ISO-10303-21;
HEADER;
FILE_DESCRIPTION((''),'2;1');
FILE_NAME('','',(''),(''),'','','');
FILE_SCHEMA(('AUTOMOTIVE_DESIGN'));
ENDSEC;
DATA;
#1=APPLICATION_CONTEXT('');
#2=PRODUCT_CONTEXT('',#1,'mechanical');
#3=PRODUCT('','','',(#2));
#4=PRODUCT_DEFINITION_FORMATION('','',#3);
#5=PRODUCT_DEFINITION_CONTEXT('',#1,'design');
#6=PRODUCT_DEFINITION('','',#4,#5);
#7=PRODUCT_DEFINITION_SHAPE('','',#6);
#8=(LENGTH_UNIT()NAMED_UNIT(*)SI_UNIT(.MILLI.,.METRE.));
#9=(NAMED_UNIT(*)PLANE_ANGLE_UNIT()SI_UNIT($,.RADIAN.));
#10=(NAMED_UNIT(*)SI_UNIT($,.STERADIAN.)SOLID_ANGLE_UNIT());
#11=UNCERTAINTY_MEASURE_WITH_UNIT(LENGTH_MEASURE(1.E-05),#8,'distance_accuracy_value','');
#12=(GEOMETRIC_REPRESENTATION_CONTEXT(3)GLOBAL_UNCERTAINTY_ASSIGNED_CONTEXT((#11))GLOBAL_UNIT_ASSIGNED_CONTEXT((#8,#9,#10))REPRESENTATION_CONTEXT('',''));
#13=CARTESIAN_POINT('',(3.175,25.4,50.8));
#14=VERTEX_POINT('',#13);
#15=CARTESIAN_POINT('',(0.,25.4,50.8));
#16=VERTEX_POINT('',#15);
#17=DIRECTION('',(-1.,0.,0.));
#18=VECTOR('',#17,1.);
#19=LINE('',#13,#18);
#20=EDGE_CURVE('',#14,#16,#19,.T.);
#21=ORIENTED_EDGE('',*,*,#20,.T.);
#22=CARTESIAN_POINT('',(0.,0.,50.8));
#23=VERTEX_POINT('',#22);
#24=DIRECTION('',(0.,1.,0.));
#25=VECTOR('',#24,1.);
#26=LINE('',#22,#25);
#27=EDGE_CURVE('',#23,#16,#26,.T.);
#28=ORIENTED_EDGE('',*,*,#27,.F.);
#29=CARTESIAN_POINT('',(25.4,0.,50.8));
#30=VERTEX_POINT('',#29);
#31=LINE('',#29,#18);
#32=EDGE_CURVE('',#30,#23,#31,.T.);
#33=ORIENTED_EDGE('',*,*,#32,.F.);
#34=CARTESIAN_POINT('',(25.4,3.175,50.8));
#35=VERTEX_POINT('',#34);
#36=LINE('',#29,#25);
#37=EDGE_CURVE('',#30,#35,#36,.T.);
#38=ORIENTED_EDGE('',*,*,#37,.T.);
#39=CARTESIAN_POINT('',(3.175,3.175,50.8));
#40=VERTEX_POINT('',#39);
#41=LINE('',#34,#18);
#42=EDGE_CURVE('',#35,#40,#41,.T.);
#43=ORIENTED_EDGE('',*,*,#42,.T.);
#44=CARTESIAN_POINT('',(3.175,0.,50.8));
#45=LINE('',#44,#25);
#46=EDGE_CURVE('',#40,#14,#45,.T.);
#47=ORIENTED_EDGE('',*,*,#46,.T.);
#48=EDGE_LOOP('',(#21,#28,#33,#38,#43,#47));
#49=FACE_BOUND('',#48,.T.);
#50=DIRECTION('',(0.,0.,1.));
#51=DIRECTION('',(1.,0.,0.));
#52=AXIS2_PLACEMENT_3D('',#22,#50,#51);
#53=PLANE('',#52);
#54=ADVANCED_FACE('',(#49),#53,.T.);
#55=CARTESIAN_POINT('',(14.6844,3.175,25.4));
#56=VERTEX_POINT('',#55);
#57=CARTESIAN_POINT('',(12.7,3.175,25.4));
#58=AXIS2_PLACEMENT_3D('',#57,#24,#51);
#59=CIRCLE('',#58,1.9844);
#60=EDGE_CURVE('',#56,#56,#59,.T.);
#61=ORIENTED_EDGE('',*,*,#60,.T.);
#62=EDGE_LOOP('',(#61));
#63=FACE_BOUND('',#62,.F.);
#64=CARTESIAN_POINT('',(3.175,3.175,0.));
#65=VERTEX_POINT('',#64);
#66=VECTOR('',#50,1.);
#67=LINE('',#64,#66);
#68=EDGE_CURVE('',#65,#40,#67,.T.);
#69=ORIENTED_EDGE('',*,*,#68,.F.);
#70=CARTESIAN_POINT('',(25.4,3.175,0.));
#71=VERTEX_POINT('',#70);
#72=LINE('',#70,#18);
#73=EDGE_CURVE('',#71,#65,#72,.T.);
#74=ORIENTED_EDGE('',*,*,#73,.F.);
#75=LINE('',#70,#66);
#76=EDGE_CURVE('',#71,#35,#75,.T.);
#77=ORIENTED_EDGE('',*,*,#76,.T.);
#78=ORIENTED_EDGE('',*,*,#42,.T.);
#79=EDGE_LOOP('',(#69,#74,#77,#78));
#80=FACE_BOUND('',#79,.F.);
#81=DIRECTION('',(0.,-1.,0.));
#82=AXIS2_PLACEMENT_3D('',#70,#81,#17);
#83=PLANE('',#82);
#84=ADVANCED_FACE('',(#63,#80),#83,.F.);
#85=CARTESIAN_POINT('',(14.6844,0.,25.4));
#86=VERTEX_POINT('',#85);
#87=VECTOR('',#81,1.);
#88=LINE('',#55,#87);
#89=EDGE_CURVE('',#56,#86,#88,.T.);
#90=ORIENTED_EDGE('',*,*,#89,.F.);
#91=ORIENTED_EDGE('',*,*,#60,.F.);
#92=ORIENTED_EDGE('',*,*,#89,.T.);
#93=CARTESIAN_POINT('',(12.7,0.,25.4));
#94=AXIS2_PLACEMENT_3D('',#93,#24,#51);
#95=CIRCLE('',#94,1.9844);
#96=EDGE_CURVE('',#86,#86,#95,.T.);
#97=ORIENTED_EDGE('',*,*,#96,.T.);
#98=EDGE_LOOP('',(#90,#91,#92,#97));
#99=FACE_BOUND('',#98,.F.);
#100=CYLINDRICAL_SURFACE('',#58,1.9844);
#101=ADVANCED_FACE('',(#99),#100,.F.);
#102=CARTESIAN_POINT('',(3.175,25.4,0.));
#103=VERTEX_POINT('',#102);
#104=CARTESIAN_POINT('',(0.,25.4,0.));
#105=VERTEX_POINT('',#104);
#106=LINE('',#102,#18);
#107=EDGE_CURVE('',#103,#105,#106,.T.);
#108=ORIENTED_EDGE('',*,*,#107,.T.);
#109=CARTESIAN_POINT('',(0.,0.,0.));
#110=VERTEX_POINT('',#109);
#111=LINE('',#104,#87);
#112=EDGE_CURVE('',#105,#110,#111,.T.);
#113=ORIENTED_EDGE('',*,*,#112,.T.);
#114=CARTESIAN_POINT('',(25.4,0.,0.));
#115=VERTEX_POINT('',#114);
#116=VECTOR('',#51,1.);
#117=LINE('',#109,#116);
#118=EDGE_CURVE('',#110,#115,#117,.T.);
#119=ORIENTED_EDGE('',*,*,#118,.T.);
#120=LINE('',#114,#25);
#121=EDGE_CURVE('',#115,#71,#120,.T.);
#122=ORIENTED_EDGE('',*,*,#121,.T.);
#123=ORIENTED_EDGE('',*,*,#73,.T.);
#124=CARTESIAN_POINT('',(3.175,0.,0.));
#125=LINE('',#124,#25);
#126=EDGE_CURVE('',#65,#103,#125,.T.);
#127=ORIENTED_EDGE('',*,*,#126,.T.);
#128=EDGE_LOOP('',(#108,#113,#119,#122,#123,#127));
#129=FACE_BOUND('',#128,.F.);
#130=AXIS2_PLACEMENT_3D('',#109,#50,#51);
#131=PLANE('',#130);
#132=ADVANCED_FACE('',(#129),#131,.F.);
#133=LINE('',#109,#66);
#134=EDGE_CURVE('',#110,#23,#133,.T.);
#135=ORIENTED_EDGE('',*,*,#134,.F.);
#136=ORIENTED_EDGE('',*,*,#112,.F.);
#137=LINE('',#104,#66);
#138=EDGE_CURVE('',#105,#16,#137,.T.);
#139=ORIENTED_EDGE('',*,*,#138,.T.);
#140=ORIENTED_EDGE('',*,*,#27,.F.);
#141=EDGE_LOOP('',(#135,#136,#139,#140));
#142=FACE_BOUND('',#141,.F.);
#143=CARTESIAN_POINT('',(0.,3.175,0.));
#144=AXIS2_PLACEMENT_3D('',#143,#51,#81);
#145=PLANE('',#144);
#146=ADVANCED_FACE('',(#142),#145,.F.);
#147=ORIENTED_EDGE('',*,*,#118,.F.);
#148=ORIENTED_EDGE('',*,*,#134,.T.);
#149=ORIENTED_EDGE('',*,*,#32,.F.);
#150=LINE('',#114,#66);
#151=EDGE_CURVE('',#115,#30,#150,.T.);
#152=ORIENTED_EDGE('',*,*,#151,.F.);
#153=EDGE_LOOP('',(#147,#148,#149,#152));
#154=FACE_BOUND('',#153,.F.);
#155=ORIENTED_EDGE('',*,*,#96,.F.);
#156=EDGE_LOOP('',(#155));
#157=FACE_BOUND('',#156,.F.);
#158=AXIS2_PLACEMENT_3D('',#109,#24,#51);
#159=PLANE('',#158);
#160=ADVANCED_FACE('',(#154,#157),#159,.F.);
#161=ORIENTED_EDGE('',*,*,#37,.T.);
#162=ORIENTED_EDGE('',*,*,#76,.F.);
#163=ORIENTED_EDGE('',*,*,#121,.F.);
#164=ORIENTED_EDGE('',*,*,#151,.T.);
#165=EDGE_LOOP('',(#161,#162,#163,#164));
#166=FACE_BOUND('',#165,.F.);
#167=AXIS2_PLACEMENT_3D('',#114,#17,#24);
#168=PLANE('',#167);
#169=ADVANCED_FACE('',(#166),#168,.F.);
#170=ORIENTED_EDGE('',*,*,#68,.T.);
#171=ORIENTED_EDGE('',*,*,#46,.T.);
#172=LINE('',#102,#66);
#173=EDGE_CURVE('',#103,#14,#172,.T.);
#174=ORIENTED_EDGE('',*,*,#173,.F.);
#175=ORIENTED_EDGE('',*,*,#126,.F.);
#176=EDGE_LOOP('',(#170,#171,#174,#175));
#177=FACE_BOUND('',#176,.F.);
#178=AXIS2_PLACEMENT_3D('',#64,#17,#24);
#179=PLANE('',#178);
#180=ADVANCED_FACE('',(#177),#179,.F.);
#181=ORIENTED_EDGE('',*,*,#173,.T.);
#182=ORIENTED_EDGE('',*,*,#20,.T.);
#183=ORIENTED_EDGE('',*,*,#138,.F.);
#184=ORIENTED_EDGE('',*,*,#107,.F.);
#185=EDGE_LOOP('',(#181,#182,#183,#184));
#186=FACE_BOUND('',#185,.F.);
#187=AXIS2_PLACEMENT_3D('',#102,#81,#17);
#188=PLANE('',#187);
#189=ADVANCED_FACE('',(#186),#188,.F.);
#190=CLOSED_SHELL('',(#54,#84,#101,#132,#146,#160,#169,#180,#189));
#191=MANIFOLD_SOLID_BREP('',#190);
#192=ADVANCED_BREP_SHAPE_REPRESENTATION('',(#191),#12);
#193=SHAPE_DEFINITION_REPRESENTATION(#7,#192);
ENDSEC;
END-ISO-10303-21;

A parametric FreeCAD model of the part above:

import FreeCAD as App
import Part
import Sketcher
from FreeCAD import Vector
Q = App.Units.Quantity

doc = App.newDocument("Part")
body = doc.addObject("PartDesign::Body", "Body")

# Sketch on XY plane
sketch1 = body.newObject("Sketcher::SketchObject", "Sketch")
sketch1.AttachmentSupport = (doc.getObject("XY_Plane"), [""])
sketch1.MapMode = "FlatFace"
sketch1.addGeometry(Part.LineSegment(Vector(0, 0, 0), Vector(25.4, 0, 0)), False)
sketch1.addGeometry(Part.LineSegment(Vector(25.4, 0, 0), Vector(25.4, 3.2, 0)), False)
sketch1.addGeometry(Part.LineSegment(Vector(25.4, 3.2, 0), Vector(3.2, 3.2, 0)), False)
sketch1.addGeometry(Part.LineSegment(Vector(3.2, 3.2, 0), Vector(3.2, 25.4, 0)), False)
sketch1.addGeometry(Part.LineSegment(Vector(3.2, 25.4, 0), Vector(0, 25.4, 0)), False)
sketch1.addGeometry(Part.LineSegment(Vector(0, 25.4, 0), Vector(0, 0, 0)), False)
sketch1.addConstraint(Sketcher.Constraint("Coincident", 0, 2, 1, 1))
sketch1.addConstraint(Sketcher.Constraint("Coincident", 1, 2, 2, 1))
sketch1.addConstraint(Sketcher.Constraint("Coincident", 2, 2, 3, 1))
sketch1.addConstraint(Sketcher.Constraint("Coincident", 3, 2, 4, 1))
sketch1.addConstraint(Sketcher.Constraint("Coincident", 4, 2, 5, 1))
sketch1.addConstraint(Sketcher.Constraint("Coincident", 5, 2, 0, 1))
sketch1.addConstraint(Sketcher.Constraint("Horizontal", 0))
sketch1.addConstraint(Sketcher.Constraint("Vertical", 1))
sketch1.addConstraint(Sketcher.Constraint("Horizontal", 2))
sketch1.addConstraint(Sketcher.Constraint("Vertical", 3))
sketch1.addConstraint(Sketcher.Constraint("Horizontal", 4))
sketch1.addConstraint(Sketcher.Constraint("Vertical", 5))
sketch1.addConstraint(Sketcher.Constraint("Coincident", 5, 2, -1, 1))
sketch1.addConstraint(Sketcher.Constraint("Equal", 4, 1))
sketch1.addConstraint(Sketcher.Constraint("Equal", 2, 3))
sketch1.addConstraint(Sketcher.Constraint("DistanceX", 0, 1, 0, 2, Q("1 in")))
sketch1.addConstraint(Sketcher.Constraint("DistanceX", 4, 2, 4, 1, Q("0.125 in")))
pad1 = body.newObject("PartDesign::Pad", "Pad")
pad1.Profile = sketch1
pad1.Length = Q("2 in")

# Sketch on XZ plane
sketch2 = body.newObject("Sketcher::SketchObject", "Sketch001")
sketch2.AttachmentSupport = (doc.getObject("XZ_Plane"), [""])
sketch2.MapMode = "FlatFace"
sketch2.AttachmentOffset = App.Placement(Vector(0, 0, -0.125 * 25.4), App.Rotation())
sketch2.addGeometry(Part.Circle(Vector(12.7, 25.4, 0), Vector(0, 0, 1), 2), False)
sketch2.addConstraint(Sketcher.Constraint("Diameter", 0, Q("0.156252 in")))
sketch2.addConstraint(Sketcher.Constraint("DistanceY", -1, 1, 0, 3, Q("1 in")))
sketch2.addConstraint(Sketcher.Constraint("DistanceX", -1, 1, 0, 3, Q("0.5 in")))
pocket1 = body.newObject("PartDesign::Pocket", "Pocket")
pocket1.Profile = sketch2
pocket1.Length = Q("2 in")
pocket1.Reversed = True

doc.recompute()
